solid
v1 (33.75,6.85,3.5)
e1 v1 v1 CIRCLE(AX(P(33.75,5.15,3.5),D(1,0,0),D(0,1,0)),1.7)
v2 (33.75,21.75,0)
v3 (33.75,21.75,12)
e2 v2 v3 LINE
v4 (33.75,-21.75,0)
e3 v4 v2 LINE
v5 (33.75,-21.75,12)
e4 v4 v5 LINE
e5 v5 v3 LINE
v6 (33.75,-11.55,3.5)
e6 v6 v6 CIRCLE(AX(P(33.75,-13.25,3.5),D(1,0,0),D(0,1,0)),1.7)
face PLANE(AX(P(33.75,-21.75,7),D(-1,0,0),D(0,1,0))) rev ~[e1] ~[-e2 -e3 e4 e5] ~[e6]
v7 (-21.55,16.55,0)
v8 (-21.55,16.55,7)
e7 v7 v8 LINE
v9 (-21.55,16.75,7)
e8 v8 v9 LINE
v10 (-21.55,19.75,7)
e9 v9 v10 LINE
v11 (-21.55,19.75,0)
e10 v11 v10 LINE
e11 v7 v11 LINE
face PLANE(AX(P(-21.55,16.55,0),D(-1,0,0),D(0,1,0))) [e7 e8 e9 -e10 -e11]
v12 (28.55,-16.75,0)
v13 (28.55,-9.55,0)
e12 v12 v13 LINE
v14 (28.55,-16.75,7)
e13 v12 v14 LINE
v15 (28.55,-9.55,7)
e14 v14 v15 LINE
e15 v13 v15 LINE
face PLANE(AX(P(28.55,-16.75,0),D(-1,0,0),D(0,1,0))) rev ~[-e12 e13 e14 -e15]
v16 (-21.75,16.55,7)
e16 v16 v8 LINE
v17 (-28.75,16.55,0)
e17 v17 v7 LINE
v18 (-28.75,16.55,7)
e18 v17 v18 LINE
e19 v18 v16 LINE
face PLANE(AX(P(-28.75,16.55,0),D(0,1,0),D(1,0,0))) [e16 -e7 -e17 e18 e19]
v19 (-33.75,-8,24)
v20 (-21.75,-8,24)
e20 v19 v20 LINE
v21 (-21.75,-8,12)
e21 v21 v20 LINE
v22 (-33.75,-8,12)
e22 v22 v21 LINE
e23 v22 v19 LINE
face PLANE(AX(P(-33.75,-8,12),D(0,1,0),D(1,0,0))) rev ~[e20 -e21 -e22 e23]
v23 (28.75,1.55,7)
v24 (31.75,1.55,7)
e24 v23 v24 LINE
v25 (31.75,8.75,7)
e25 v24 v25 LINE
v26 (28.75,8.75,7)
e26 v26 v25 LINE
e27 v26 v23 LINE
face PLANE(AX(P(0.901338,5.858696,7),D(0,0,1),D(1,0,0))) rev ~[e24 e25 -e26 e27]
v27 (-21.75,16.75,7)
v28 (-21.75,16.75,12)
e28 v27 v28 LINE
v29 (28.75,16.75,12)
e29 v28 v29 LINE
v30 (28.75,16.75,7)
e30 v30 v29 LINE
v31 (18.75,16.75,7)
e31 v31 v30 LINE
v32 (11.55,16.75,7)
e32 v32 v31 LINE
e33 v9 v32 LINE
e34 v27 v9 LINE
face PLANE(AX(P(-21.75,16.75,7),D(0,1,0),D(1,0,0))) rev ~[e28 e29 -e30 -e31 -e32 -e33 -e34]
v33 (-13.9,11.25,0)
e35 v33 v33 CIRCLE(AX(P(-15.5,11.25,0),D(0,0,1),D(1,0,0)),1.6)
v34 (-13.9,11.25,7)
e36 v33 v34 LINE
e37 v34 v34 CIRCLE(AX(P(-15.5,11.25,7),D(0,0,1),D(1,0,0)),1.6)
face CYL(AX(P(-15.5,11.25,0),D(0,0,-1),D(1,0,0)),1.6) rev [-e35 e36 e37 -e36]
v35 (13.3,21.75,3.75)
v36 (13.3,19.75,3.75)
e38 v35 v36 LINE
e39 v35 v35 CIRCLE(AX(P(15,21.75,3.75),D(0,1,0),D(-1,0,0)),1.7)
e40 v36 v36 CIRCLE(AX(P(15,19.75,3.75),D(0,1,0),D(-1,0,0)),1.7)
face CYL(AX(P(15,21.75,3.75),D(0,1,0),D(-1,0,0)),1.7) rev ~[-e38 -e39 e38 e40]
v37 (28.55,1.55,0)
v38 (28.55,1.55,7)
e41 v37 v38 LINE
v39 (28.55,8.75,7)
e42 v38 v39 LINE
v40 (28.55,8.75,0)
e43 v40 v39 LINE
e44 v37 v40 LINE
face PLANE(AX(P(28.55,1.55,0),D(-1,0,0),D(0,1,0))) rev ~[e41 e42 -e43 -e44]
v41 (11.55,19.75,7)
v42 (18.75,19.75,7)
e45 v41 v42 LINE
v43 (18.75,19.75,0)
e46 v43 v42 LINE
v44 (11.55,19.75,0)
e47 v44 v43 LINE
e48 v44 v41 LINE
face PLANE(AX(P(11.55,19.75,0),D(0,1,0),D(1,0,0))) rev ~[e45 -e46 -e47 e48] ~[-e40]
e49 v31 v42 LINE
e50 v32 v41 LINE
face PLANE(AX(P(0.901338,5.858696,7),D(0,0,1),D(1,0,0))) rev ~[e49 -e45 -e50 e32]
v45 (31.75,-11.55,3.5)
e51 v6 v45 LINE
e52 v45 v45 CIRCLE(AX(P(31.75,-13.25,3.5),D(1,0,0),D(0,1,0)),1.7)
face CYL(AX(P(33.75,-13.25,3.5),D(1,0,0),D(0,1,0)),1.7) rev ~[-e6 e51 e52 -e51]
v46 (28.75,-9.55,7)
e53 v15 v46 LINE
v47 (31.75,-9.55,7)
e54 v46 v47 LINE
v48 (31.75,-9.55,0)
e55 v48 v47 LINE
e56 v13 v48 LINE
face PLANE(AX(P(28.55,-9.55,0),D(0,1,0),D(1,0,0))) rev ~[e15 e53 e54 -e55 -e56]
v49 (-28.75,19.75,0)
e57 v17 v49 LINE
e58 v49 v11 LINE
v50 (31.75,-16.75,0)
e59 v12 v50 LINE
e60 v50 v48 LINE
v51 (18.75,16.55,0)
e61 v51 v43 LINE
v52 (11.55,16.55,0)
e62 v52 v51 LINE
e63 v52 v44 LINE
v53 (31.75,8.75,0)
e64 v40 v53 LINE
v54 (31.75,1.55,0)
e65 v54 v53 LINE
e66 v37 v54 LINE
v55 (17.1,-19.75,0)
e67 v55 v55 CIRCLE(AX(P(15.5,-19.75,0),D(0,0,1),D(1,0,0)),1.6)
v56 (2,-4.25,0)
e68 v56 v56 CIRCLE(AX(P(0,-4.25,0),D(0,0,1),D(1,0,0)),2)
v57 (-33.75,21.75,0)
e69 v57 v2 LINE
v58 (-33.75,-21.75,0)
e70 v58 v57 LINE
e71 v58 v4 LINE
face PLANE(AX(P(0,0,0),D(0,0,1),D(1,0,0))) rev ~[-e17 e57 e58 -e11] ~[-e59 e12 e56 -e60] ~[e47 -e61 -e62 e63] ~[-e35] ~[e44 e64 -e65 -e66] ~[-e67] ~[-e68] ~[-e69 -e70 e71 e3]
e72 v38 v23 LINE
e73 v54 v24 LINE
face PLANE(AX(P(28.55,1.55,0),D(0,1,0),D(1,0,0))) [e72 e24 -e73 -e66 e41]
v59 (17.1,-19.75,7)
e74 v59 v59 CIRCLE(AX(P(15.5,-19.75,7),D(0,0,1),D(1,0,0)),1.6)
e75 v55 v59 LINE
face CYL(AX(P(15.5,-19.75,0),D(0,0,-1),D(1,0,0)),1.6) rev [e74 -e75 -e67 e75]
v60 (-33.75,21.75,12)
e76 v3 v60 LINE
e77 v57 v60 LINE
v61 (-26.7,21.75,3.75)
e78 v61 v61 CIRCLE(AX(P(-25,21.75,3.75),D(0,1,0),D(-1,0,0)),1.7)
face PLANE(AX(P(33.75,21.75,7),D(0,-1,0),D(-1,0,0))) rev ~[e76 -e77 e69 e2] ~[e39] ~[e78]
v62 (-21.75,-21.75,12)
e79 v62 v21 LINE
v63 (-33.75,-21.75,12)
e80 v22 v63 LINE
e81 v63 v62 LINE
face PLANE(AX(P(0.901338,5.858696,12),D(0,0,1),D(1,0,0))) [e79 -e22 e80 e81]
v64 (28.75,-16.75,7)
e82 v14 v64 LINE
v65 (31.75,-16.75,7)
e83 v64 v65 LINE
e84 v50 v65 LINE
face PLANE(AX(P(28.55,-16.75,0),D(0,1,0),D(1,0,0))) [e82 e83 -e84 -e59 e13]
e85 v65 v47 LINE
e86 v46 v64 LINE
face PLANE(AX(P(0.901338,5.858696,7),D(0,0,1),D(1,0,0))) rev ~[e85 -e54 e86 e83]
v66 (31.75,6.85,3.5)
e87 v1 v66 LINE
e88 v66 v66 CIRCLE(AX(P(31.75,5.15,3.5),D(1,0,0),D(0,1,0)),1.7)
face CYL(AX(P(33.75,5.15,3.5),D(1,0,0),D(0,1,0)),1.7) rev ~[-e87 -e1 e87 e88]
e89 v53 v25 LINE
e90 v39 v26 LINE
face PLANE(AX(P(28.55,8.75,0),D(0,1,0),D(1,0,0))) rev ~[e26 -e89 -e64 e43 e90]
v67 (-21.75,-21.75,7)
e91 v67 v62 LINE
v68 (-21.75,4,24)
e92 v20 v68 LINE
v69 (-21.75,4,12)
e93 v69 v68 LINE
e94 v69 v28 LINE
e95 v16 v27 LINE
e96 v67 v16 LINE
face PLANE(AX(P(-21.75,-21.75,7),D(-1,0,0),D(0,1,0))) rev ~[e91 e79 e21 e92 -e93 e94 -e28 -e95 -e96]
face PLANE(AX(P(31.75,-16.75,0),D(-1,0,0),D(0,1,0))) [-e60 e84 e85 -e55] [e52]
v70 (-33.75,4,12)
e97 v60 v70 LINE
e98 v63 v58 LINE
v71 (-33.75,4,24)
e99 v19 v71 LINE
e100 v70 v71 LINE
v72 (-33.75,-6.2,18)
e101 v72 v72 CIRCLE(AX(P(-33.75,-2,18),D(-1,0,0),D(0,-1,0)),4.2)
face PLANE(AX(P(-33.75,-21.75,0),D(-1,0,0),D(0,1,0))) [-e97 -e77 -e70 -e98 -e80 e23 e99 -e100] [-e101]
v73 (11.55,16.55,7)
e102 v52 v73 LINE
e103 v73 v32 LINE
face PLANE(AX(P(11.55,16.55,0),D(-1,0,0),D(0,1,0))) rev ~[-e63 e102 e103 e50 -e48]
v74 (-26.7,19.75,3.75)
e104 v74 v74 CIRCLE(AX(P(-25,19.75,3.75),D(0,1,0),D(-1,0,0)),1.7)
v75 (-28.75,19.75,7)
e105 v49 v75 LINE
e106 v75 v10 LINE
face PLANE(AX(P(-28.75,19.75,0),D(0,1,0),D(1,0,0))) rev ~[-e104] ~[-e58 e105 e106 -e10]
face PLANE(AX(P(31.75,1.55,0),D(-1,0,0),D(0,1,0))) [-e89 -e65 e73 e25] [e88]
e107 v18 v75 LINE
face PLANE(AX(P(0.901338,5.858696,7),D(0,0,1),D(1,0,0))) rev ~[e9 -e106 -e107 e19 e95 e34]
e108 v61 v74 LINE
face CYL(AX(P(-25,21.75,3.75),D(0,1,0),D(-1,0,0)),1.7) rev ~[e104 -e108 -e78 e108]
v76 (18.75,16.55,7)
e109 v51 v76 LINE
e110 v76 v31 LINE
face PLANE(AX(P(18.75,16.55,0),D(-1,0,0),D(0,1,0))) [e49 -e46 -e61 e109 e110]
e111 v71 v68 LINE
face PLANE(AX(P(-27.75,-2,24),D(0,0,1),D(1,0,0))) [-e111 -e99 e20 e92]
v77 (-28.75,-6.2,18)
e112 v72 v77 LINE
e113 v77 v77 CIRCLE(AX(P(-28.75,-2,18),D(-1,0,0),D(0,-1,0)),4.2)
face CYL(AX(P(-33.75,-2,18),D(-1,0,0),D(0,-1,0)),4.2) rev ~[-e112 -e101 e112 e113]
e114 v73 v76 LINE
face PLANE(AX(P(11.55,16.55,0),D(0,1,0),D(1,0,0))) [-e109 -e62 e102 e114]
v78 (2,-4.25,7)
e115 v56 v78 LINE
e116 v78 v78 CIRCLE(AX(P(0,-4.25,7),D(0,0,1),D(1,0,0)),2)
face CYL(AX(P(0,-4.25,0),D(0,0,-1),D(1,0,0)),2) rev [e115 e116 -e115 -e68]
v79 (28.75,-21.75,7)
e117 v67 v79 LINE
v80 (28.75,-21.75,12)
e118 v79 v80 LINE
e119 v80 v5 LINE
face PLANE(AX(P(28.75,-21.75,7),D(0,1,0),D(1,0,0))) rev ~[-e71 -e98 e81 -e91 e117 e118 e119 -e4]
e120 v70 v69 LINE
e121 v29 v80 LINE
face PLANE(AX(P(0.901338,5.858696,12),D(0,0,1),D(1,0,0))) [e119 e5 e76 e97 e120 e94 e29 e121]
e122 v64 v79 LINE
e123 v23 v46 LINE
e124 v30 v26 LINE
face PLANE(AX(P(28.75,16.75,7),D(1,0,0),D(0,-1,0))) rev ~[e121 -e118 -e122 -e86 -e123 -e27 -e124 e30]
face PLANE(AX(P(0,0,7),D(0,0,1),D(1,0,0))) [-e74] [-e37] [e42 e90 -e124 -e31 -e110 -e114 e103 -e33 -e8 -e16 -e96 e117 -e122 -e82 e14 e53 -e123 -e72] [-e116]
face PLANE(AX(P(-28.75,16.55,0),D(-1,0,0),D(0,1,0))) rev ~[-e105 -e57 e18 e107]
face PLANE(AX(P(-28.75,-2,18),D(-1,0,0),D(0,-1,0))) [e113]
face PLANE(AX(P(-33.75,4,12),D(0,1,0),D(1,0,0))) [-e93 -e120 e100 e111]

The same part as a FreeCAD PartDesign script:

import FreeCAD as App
import Part
import Sketcher

V = App.Vector
Q = App.Units.Quantity


def add_polygon(sketch, points):
    """Adds a closed chain of lines whose ends are joined by coincident constraints."""
    first, n = sketch.GeometryCount, len(points)
    for a, b in zip(points, points[1:] + points[:1]):
        sketch.addGeometry(Part.LineSegment(App.Vector(*a, 0), App.Vector(*b, 0)), False)
    for i in range(n):
        sketch.addConstraint(Sketcher.Constraint("Coincident", first + i, 2, first + (i + 1) % n, 1))

doc = App.newDocument("Part")
body = doc.addObject("PartDesign::Body", "Body")

sketch1 = body.newObject("Sketcher::SketchObject", "Sketch")
sketch1.AttachmentSupport = (doc.getObject("XY_Plane"), [""])
sketch1.MapMode = "FlatFace"
add_polygon(sketch1, [(-33.75, 21.75), (-33.75, -21.75), (33.75, -21.75), (33.75, 21.75)])
sketch1.addGeometry(Part.Circle(V(0, -4.25, 0), V(0, 0, 1), 2), False)
sketch1.addGeometry(Part.Circle(V(15.5, -19.75, 0), V(0, 0, 1), 1.6), False)
add_polygon(sketch1, [(31.75, -16.75), (28.55, -16.75), (28.55, -9.55), (31.75, -9.55)])
sketch1.addGeometry(Part.Circle(V(-15.5, 11.25, 0), V(0, 0, 1), 1.6), False)
add_polygon(sketch1, [(-21.55, 16.55), (-28.75, 16.55), (-28.75, 19.75), (-21.55, 19.75)])
add_polygon(sketch1, [(31.75, 1.55), (28.55, 1.55), (28.55, 8.75), (31.75, 8.75)])
add_polygon(sketch1, [(18.75, 16.55), (11.55, 16.55), (11.55, 19.75), (18.75, 19.75)])
sketch1.addConstraint(Sketcher.Constraint("Vertical", 0))
sketch1.addConstraint(Sketcher.Constraint("Horizontal", 1))
sketch1.addConstraint(Sketcher.Constraint("Vertical", 2))
sketch1.addConstraint(Sketcher.Constraint("Horizontal", 3))
sketch1.addConstraint(Sketcher.Constraint("Horizontal", 6))
sketch1.addConstraint(Sketcher.Constraint("Vertical", 7))
sketch1.addConstraint(Sketcher.Constraint("Horizontal", 8))
sketch1.addConstraint(Sketcher.Constraint("Vertical", 9))
sketch1.addConstraint(Sketcher.Constraint("Horizontal", 11))
sketch1.addConstraint(Sketcher.Constraint("Vertical", 12))
sketch1.addConstraint(Sketcher.Constraint("Horizontal", 13))
sketch1.addConstraint(Sketcher.Constraint("Vertical", 14))
sketch1.addConstraint(Sketcher.Constraint("Horizontal", 15))
sketch1.addConstraint(Sketcher.Constraint("Vertical", 16))
sketch1.addConstraint(Sketcher.Constraint("Horizontal", 17))
sketch1.addConstraint(Sketcher.Constraint("Vertical", 18))
sketch1.addConstraint(Sketcher.Constraint("Horizontal", 19))
sketch1.addConstraint(Sketcher.Constraint("Vertical", 20))
sketch1.addConstraint(Sketcher.Constraint("Horizontal", 21))
sketch1.addConstraint(Sketcher.Constraint("Vertical", 22))
sketch1.addConstraint(Sketcher.Constraint("Equal", 5, 10))
sketch1.addConstraint(Sketcher.Constraint("Symmetric", 0, 2, 2, 2, -1, 1))
sketch1.addConstraint(Sketcher.Constraint("PointOnObject", 4, 3, -2))
sketch1.addConstraint(Sketcher.Constraint("Horizontal", 14, 2, 19, 2))
sketch1.addConstraint(Sketcher.Constraint("Horizontal", 13, 2, 20, 2))
sketch1.addConstraint(Sketcher.Constraint("Vertical", 7, 2, 15, 2))
sketch1.addConstraint(Sketcher.Constraint("Vertical", 9, 2, 17, 2))
sketch1.addConstraint(Sketcher.Constraint("Equal", 13, 19))
sketch1.addConstraint(Sketcher.Constraint("Equal", 21, 7))
sketch1.addConstraint(Sketcher.Constraint("Equal", 17, 12))
sketch1.addConstraint(Sketcher.Constraint("Equal", 9, 16))
sketch1.addConstraint(Sketcher.Constraint("Diameter", 4, Q("4 mm")))
sketch1.addConstraint(Sketcher.Constraint("Diameter", 5, Q("3.2 mm")))
sketch1.addConstraint(Sketcher.Constraint("DistanceX", 1, 1, 1, 2, Q("67.5 mm")))
sketch1.addConstraint(Sketcher.Constraint("DistanceX", 6, 2, 6, 1, Q("3.2 mm")))
sketch1.addConstraint(Sketcher.Constraint("DistanceX", 11, 2, 11, 1, Q("7.2 mm")))
sketch1.addConstraint(Sketcher.Constraint("DistanceY", 0, 2, 0, 1, Q("43.5 mm")))
sketch1.addConstraint(Sketcher.Constraint("DistanceX", 10, 3, 5, 3, Q("31 mm")))
sketch1.addConstraint(Sketcher.Constraint("DistanceY", 5, 3, 10, 3, Q("31 mm")))
sketch1.addConstraint(Sketcher.Constraint("DistanceY", 0, 2, 10, 3, Q("33 mm")))
sketch1.addConstraint(Sketcher.Constraint("DistanceY", 4, 3, 2, 2, Q("26 mm")))
sketch1.addConstraint(Sketcher.Constraint("DistanceY", 1, 2, 6, 2, Q("5 mm")))
sketch1.addConstraint(Sketcher.Constraint("DistanceX", 8, 2, 1, 2, Q("2 mm")))
sketch1.addConstraint(Sketcher.Constraint("DistanceX", 3, 2, 11, 2, Q("5 mm")))
sketch1.addConstraint(Sketcher.Constraint("DistanceY", 12, 2, 3, 2, Q("2 mm")))
sketch1.addConstraint(Sketcher.Constraint("DistanceY", 16, 2, 2, 2, Q("13 mm")))
sketch1.addConstraint(Sketcher.Constraint("DistanceX", 19, 2, 16, 2, Q("17 mm")))
sketch1.addConstraint(Sketcher.Constraint("DistanceX", -1, 1, 5, 3, Q("15.5 mm")))
pad1 = body.newObject("PartDesign::Pad", "Pad")
pad1.Profile = sketch1
pad1.Length = 7

sketch2 = body.newObject("Sketcher::SketchObject", "Sketch001")
sketch2.AttachmentSupport = (doc.getObject("XY_Plane"), [""])
sketch2.MapMode = "FlatFace"
sketch2.AttachmentOffset = App.Placement(V(0, 0, 7), App.Rotation())
add_polygon(sketch2, [(28.75, -21.75), (33.75, -21.75), (33.75, 21.75), (-33.75, 21.75), (-33.75, -21.75), (-21.75, -21.75), (-21.75, 16.75), (28.75, 16.75)])
sketch2.addConstraint(Sketcher.Constraint("Horizontal", 0))
sketch2.addConstraint(Sketcher.Constraint("Vertical", 1))
sketch2.addConstraint(Sketcher.Constraint("Horizontal", 2))
sketch2.addConstraint(Sketcher.Constraint("Vertical", 3))
sketch2.addConstraint(Sketcher.Constraint("Horizontal", 4))
sketch2.addConstraint(Sketcher.Constraint("Vertical", 5))
sketch2.addConstraint(Sketcher.Constraint("Horizontal", 6))
sketch2.addConstraint(Sketcher.Constraint("Vertical", 7))
sketch2.addConstraint(Sketcher.Constraint("Symmetric", 0, 2, 2, 2, -1, 1))
sketch2.addConstraint(Sketcher.Constraint("Horizontal", 0, 2, 3, 2))
sketch2.addConstraint(Sketcher.Constraint("DistanceX", 0, 1, 0, 2, Q("5 mm")))
sketch2.addConstraint(Sketcher.Constraint("DistanceX", 4, 1, 4, 2, Q("12 mm")))
sketch2.addConstraint(Sketcher.Constraint("DistanceX", 2, 2, 2, 1, Q("67.5 mm")))
sketch2.addConstraint(Sketcher.Constraint("DistanceY", 1, 1, 1, 2, Q("43.5 mm")))
sketch2.addConstraint(Sketcher.Constraint("DistanceY", 5, 1, 5, 2, Q("38.5 mm")))
pad2 = body.newObject("PartDesign::Pad", "Pad001")
pad2.Profile = sketch2
pad2.Length = 5

sketch3 = body.newObject("Sketcher::SketchObject", "Sketch002")
sketch3.AttachmentSupport = (doc.getObject("XY_Plane"), [""])
sketch3.MapMode = "FlatFace"
sketch3.AttachmentOffset = App.Placement(V(0, 0, 12), App.Rotation())
add_polygon(sketch3, [(-33.75, 4), (-33.75, -8), (-21.75, -8), (-21.75, 4)])
sketch3.addConstraint(Sketcher.Constraint("Vertical", 0))
sketch3.addConstraint(Sketcher.Constraint("Horizontal", 1))
sketch3.addConstraint(Sketcher.Constraint("Vertical", 2))
sketch3.addConstraint(Sketcher.Constraint("Horizontal", 3))
sketch3.addConstraint(Sketcher.Constraint("Equal", 3, 0))
sketch3.addConstraint(Sketcher.Constraint("DistanceX", 1, 1, 1, 2, Q("12 mm")))
sketch3.addConstraint(Sketcher.Constraint("DistanceY", 0, 2, -1, 1, Q("8 mm")))
sketch3.addConstraint(Sketcher.Constraint("DistanceX", 0, 2, -1, 1, Q("33.75 mm")))
pad3 = body.newObject("PartDesign::Pad", "Pad002")
pad3.Profile = sketch3
pad3.Length = 12

sketch4 = body.newObject("Sketcher::SketchObject", "Sketch003")
sketch4.AttachmentSupport = (doc.getObject("YZ_Plane"), [""])
sketch4.MapMode = "FlatFace"
sketch4.AttachmentOffset = App.Placement(V(0, 0, -33.75), App.Rotation())
sketch4.addGeometry(Part.Circle(V(-2, 18, 0), V(0, 0, 1), 4.2), False)
sketch4.addConstraint(Sketcher.Constraint("Diameter", 0, Q("8.4 mm")))
sketch4.addConstraint(Sketcher.Constraint("DistanceX", 0, 3, -1, 1, Q("2 mm")))
sketch4.addConstraint(Sketcher.Constraint("DistanceY", -1, 1, 0, 3, Q("18 mm")))
pocket1 = body.newObject("PartDesign::Pocket", "Pocket")
pocket1.Profile = sketch4
pocket1.Length = 5
pocket1.Reversed = True

sketch5 = body.newObject("Sketcher::SketchObject", "Sketch004")
sketch5.AttachmentSupport = (doc.getObject("XZ_Plane"), [""])
sketch5.MapMode = "FlatFace"
sketch5.AttachmentOffset = App.Placement(V(0, 0, -21.75), App.Rotation())
sketch5.addGeometry(Part.Circle(V(-25, 3.75, 0), V(0, 0, 1), 1.7), False)
sketch5.addGeometry(Part.Circle(V(15, 3.75, 0), V(0, 0, 1), 1.7), False)
sketch5.addConstraint(Sketcher.Constraint("Equal", 0, 1))
sketch5.addConstraint(Sketcher.Constraint("Horizontal", 0, 3, 1, 3))
sketch5.addConstraint(Sketcher.Constraint("Diameter", 0, Q("3.4 mm")))
sketch5.addConstraint(Sketcher.Constraint("DistanceX", 0, 3, -1, 1, Q("25 mm")))
sketch5.addConstraint(Sketcher.Constraint("DistanceX", -1, 1, 1, 3, Q("15 mm")))
sketch5.addConstraint(Sketcher.Constraint("DistanceY", -1, 1, 0, 3, Q("3.75 mm")))
pocket2 = body.newObject("PartDesign::Pocket", "Pocket001")
pocket2.Profile = sketch5
pocket2.Length = 5
pocket2.Reversed = True

sketch6 = body.newObject("Sketcher::SketchObject", "Sketch005")
sketch6.AttachmentSupport = (doc.getObject("YZ_Plane"), [""])
sketch6.MapMode = "FlatFace"
sketch6.AttachmentOffset = App.Placement(V(0, 0, 33.75), App.Rotation())
sketch6.addGeometry(Part.Circle(V(5.15, 3.5, 0), V(0, 0, 1), 1.7), False)
sketch6.addGeometry(Part.Circle(V(-13.25, 3.5, 0), V(0, 0, 1), 1.7), False)
sketch6.addConstraint(Sketcher.Constraint("Equal", 0, 1))
sketch6.addConstraint(Sketcher.Constraint("Horizontal", 0, 3, 1, 3))
sketch6.addConstraint(Sketcher.Constraint("Diameter", 0, Q("3.4 mm")))
sketch6.addConstraint(Sketcher.Constraint("DistanceY", -1, 1, 0, 3, Q("3.5 mm")))
sketch6.addConstraint(Sketcher.Constraint("DistanceX", 1, 3, 0, 3, Q("18.4 mm")))
sketch6.addConstraint(Sketcher.Constraint("DistanceX", -1, 1, 0, 3, Q("5.15 mm")))
pocket3 = body.newObject("PartDesign::Pocket", "Pocket002")
pocket3.Profile = sketch6
pocket3.Length = 5

doc.recompute()
